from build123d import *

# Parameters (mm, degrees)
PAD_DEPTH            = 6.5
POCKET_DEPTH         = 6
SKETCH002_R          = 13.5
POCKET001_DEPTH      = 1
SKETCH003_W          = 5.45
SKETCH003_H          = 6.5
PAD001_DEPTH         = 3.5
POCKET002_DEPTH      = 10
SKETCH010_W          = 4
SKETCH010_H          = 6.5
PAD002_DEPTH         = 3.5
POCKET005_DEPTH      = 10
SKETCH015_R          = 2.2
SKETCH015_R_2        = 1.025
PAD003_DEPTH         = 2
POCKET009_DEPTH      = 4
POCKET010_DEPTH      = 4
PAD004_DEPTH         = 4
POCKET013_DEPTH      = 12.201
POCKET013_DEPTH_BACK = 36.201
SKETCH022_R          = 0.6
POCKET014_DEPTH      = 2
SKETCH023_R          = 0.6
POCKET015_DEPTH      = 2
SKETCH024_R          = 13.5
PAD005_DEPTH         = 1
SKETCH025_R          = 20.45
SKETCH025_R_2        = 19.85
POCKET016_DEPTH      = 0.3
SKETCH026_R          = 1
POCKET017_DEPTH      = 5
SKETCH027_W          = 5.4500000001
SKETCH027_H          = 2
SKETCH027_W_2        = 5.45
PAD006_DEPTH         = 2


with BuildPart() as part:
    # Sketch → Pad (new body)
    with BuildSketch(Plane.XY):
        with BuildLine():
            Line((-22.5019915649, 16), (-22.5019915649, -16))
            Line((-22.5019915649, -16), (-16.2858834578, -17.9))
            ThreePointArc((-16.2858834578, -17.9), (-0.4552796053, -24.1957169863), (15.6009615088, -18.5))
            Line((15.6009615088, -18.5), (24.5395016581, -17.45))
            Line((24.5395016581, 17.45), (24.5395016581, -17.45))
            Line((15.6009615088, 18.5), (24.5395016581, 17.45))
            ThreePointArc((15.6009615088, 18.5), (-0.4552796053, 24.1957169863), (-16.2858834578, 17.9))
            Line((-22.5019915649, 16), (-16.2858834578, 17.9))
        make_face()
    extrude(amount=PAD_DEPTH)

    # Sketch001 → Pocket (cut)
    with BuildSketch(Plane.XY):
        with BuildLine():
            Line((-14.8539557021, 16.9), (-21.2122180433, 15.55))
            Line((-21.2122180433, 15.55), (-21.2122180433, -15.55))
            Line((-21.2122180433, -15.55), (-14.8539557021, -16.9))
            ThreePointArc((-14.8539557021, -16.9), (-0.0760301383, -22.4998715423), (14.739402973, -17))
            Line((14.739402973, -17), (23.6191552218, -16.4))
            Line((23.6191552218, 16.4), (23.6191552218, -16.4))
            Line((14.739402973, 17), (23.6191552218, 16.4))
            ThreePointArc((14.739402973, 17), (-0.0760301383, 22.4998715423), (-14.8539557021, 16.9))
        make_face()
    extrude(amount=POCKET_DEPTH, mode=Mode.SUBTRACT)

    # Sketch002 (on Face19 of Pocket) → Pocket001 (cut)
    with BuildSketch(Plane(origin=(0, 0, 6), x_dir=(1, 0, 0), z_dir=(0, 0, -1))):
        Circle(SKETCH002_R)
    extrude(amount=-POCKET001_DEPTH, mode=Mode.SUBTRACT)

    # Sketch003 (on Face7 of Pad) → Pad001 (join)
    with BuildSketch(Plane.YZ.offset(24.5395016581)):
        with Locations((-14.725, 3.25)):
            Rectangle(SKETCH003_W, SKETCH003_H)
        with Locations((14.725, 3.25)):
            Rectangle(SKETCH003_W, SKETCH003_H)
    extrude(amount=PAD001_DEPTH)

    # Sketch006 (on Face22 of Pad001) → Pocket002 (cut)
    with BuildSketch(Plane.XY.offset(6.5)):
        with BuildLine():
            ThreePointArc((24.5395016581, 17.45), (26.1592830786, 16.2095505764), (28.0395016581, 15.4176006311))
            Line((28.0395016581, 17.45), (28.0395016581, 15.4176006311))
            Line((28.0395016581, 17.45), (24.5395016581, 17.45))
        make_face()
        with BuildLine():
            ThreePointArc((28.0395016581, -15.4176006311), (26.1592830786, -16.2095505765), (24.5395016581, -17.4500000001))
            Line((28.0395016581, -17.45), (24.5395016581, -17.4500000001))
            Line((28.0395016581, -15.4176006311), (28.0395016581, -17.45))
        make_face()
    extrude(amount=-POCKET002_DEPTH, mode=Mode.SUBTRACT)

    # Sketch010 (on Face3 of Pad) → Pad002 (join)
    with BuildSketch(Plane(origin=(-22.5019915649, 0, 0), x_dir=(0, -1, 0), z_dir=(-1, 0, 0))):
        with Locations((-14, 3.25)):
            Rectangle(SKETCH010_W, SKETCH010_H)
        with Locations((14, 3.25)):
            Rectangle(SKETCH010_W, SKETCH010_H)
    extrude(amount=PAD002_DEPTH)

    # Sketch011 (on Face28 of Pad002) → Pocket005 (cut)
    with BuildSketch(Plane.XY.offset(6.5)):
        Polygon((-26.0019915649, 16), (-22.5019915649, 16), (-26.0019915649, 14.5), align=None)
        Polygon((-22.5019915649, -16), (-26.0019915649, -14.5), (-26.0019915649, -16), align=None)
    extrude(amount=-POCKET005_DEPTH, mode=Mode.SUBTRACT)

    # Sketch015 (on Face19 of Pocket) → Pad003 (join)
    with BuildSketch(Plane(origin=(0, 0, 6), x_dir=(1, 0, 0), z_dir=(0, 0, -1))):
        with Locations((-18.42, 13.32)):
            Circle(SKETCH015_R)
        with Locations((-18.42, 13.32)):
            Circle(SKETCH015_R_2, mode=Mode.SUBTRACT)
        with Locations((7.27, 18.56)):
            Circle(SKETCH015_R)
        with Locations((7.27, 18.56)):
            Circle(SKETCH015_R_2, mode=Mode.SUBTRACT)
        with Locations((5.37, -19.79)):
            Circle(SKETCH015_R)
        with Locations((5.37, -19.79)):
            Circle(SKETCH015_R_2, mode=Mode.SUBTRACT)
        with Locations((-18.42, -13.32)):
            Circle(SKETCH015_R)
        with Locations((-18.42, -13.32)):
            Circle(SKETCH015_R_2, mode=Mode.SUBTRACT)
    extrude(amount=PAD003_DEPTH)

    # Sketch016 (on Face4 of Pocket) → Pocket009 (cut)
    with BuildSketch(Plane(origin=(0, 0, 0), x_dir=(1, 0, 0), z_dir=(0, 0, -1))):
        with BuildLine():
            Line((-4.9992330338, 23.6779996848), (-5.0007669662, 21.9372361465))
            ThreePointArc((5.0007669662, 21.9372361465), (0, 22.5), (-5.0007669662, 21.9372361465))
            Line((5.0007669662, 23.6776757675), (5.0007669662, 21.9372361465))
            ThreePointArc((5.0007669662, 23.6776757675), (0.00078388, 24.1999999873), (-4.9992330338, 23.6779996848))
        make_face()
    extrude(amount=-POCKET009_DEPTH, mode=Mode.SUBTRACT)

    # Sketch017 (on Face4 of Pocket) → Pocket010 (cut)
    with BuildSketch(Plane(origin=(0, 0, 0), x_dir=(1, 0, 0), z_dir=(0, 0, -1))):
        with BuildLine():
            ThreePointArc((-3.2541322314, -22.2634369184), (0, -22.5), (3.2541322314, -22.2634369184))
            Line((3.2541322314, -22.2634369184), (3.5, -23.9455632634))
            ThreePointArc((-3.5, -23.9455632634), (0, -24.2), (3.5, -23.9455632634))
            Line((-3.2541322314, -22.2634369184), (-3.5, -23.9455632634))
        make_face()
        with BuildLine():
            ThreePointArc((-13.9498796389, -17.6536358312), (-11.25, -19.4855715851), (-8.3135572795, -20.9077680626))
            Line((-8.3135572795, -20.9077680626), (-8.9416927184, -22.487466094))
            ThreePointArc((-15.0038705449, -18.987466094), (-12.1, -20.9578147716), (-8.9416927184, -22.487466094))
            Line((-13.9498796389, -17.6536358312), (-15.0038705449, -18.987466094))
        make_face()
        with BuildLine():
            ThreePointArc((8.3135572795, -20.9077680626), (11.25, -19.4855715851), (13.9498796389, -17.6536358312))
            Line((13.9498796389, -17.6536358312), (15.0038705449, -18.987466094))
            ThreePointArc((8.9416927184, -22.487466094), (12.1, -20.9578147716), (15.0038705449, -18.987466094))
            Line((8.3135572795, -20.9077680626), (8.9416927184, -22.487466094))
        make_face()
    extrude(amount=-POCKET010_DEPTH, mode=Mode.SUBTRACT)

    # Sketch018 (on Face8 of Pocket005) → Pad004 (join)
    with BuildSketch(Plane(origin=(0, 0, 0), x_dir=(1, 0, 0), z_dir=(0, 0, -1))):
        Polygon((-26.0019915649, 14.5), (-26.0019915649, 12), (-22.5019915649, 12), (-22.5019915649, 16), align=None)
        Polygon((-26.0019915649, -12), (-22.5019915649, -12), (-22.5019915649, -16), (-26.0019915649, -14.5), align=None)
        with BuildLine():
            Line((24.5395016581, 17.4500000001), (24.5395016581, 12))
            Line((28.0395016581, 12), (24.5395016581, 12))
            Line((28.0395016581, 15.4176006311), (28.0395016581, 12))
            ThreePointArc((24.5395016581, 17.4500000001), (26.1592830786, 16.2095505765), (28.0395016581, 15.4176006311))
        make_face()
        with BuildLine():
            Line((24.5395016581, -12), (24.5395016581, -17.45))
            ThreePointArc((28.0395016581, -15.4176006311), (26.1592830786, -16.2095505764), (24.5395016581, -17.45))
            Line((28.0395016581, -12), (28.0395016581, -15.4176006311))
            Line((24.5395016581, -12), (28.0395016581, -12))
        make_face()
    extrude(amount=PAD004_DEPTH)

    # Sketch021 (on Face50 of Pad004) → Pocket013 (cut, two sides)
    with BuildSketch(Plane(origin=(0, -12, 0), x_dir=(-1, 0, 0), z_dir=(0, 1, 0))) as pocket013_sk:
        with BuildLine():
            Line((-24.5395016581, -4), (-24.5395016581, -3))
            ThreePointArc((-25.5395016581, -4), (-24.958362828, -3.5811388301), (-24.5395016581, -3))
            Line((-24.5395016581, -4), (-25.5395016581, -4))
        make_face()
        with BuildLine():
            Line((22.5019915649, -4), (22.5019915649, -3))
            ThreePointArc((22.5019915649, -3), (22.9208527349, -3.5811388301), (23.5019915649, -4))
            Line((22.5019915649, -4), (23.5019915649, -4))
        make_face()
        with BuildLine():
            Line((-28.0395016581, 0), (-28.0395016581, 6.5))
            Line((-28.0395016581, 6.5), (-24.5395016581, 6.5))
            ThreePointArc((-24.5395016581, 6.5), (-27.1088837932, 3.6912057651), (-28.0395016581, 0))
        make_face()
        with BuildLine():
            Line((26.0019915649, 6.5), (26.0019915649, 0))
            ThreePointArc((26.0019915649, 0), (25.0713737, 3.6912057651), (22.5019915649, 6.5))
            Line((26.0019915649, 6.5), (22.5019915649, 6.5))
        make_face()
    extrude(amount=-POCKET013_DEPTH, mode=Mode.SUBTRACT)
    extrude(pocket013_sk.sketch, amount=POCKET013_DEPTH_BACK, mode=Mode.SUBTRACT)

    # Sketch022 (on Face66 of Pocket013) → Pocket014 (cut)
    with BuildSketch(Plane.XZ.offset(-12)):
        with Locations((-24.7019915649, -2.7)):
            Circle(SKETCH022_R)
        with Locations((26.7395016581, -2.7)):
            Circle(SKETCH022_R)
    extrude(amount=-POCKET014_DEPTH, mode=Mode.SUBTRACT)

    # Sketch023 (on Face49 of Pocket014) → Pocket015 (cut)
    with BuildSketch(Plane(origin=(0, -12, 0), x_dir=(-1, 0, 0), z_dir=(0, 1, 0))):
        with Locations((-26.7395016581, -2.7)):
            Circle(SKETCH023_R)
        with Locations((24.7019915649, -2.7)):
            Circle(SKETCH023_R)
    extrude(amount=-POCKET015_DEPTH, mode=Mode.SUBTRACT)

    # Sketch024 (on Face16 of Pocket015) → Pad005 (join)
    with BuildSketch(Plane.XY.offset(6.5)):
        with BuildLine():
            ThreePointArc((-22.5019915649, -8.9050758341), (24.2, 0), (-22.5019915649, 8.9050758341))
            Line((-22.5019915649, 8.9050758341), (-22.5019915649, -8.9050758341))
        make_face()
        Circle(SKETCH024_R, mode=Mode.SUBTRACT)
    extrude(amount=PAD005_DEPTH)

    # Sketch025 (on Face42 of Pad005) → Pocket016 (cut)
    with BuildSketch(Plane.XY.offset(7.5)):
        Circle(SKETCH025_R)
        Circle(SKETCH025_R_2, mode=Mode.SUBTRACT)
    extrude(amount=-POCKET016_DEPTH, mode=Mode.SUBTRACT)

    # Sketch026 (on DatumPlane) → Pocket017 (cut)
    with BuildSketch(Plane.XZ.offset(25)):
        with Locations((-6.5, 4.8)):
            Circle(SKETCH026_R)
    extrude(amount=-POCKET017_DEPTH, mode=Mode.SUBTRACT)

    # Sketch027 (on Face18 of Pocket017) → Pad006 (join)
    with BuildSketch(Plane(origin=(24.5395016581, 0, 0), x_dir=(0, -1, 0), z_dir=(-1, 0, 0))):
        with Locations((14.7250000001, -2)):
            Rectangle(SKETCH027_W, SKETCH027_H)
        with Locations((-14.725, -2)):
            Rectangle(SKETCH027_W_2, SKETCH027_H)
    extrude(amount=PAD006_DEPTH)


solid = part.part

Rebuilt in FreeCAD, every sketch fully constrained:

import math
import FreeCAD as App
import Part
import Sketcher

V = App.Vector
Q = App.Units.Quantity

doc = App.newDocument("Part")
params = doc.addObject("Spreadsheet::Sheet", "Params")
for row, (alias, value) in enumerate([
    ("sketch1_radius", "24.2 mm"),
    ("sketch1_height", "32 mm"),
    ("sketch1_length", "9 mm"),
    ("sketch1_height2", "34.9 mm"),
    ("sketch1_length2", "6.5 mm"),
    ("pad1_length", "6.5 mm"),
    ("sketch2_radius", "22.5 mm"),
    ("sketch2_height", "31.1 mm"),
    ("sketch2_height2", "32.8 mm"),
    ("sketch2_length", "6.5 mm"),
    ("sketch2_length2", "8.9 mm"),
    ("pocket1_length", "6 mm"),
    ("sketch3_diameter", "27 mm"),
    ("pocket2_length", "1 mm"),
    ("sketch4_height", "6.5 mm"),
    ("sketch4_width", "5.45 mm"),
    ("pad2_length", "3.5 mm"),
    ("sketch5_width", "3.5 mm"),
    ("pocket3_length", "10 mm"),
    ("sketch6_width", "4 mm"),
    ("sketch6_height", "6.5 mm"),
    ("pad3_length", "3.5 mm"),
    ("sketch7_width", "3.5 mm"),
    ("sketch7_height", "1.5 mm"),
    ("pocket4_length", "10 mm"),
    ("sketch8_diameter", "4.4 mm"),
    ("sketch8_diameter2", "2.05 mm"),
    ("pad4_length", "2 mm"),
    ("sketch9_radius", "22.5 mm"),
    ("sketch9_radius2", "24.2 mm"),
    ("pocket5_length", "4 mm"),
    ("sketch10_radius", "22.5 mm"),
    ("sketch10_radius2", "24.2 mm"),
    ("pocket6_length", "4 mm"),
    ("sketch11_height", "4 mm"),
    ("sketch11_width", "3.5 mm"),
    ("sketch11_height2", "2.5 mm"),
    ("sketch11_height3", "5.45 mm"),
    ("pad5_length", "4 mm"),
    ("sketch12_width", "1 mm"),
    ("sketch12_width2", "3.5 mm"),
    ("sketch12_height", "6.5 mm"),
    ("sketch13_diameter", "1.2 mm"),
    ("pocket8_length", "2 mm"),
    ("sketch14_diameter", "1.2 mm"),
    ("pocket9_length", "2 mm"),
    ("sketch15_diameter", "27 mm"),
    ("sketch15_radius", "24.2 mm"),
    ("pad6_length", "1 mm"),
    ("sketch16_diameter", "40.9 mm"),
    ("sketch16_diameter2", "39.7 mm"),
    ("pocket10_length", "0.3 mm"),
    ("sketch17_diameter", "2 mm"),
    ("pocket11_length", "5 mm"),
    ("sketch18_height", "2 mm"),
    ("sketch18_width", "5.45 mm"),
    ("pad7_length", "2 mm"),
], start=1):
    params.set(f"A{row}", alias)
    params.set(f"B{row}", "=" + value)
    params.setAlias(f"B{row}", alias)

body = doc.addObject("PartDesign::Body", "Body")

# Sketch on XY plane
sketch1 = body.newObject("Sketcher::SketchObject", "Sketch")
sketch1.AttachmentSupport = (doc.getObject("XY_Plane"), [""])
sketch1.MapMode = "FlatFace"
sketch1.addGeometry(Part.LineSegment(V(-23, 16, 0), V(-23, -16, 0)), False)
sketch1.addGeometry(Part.LineSegment(V(-23, -16, 0), V(-16, -18, 0)), False)
sketch1.addGeometry(Part.ArcOfCircle(Part.Circle(V(0, 0, 0), V(0, 0, 1), 24), math.radians(-132), math.radians(-50)), False)
sketch1.addGeometry(Part.LineSegment(V(16, -18, 0), V(25, -17, 0)), False)
sketch1.addGeometry(Part.LineSegment(V(25, -17, 0), V(25, 17, 0)), False)
sketch1.addGeometry(Part.LineSegment(V(25, 17, 0), V(16, 18, 0)), False)
sketch1.addGeometry(Part.ArcOfCircle(Part.Circle(V(0, 0, 0), V(0, 0, 1), 24), math.radians(50), math.radians(132)), False)
sketch1.addGeometry(Part.LineSegment(V(-16, 18, 0), V(-23, 16, 0)), False)
sketch1.addConstraint(Sketcher.Constraint("Coincident", 0, 2, 1, 1))
sketch1.addConstraint(Sketcher.Constraint("Coincident", 1, 2, 2, 1))
sketch1.addConstraint(Sketcher.Constraint("Coincident", 2, 2, 3, 1))
sketch1.addConstraint(Sketcher.Constraint("Coincident", 3, 2, 4, 1))
sketch1.addConstraint(Sketcher.Constraint("Coincident", 4, 2, 5, 1))
sketch1.addConstraint(Sketcher.Constraint("Coincident", 5, 2, 6, 1))
sketch1.addConstraint(Sketcher.Constraint("Coincident", 6, 2, 7, 1))
sketch1.addConstraint(Sketcher.Constraint("Coincident", 7, 2, 0, 1))
sketch1.addConstraint(Sketcher.Constraint("Vertical", 0))
sketch1.addConstraint(Sketcher.Constraint("Vertical", 4))
sketch1.addConstraint(Sketcher.Constraint("Coincident", 2, 3, -1, 1))
sketch1.addConstraint(Sketcher.Constraint("Coincident", 6, 3, -1, 1))
sketch1.addConstraint(Sketcher.Constraint("Equal", 2, 6))
sketch1.addConstraint(Sketcher.Constraint("Vertical", 2, 2, 5, 2))
sketch1.addConstraint(Sketcher.Constraint("Vertical", 1, 2, 6, 2))
sketch1.addConstraint(Sketcher.Constraint("Equal", 3, 5))
sketch1.addConstraint(Sketcher.Constraint("Equal", 1, 7))
sketch1.addConstraint(Sketcher.Constraint("Radius", 2, Q("24.2 mm")))
sketch1.addConstraint(Sketcher.Constraint("DistanceY", 0, 2, 0, 1, Q("32 mm")))
sketch1.addConstraint(Sketcher.Constraint("Distance", 3, Q("9 mm")))
sketch1.addConstraint(Sketcher.Constraint("DistanceY", 4, 1, 4, 2, Q("34.9 mm")))
sketch1.addConstraint(Sketcher.Constraint("DistanceY", 2, 2, 5, 2, Q("37 mm")))
sketch1.addConstraint(Sketcher.Constraint("Distance", 1, Q("6.5 mm")))
sketch1.addConstraint(Sketcher.Constraint("DistanceY", 1, 2, -1, 1, Q("17.9 mm")))
sketch1.setExpression("Constraints[17]", "Params.sketch1_radius")
sketch1.setExpression("Constraints[18]", "Params.sketch1_height")
sketch1.setExpression("Constraints[19]", "Params.sketch1_length")
sketch1.setExpression("Constraints[20]", "Params.sketch1_height2")
sketch1.setExpression("Constraints[22]", "Params.sketch1_length2")
pad1 = body.newObject("PartDesign::Pad", "Pad")
pad1.Profile = sketch1
pad1.setExpression("Length", "Params.pad1_length")

# Sketch on XY plane
sketch2 = body.newObject("Sketcher::SketchObject", "Sketch001")
sketch2.AttachmentSupport = (doc.getObject("XY_Plane"), [""])
sketch2.MapMode = "FlatFace"
sketch2.addGeometry(Part.LineSegment(V(-15, 17, 0), V(-21, 16, 0)), False)
sketch2.addGeometry(Part.LineSegment(V(-21, 16, 0), V(-21, -16, 0)), False)
sketch2.addGeometry(Part.LineSegment(V(-21, -16, 0), V(-15, -17, 0)), False)
sketch2.addGeometry(Part.ArcOfCircle(Part.Circle(V(0, 0, 0), V(0, 0, 1), 22), math.radians(-131), math.radians(-49)), False)
sketch2.addGeometry(Part.LineSegment(V(15, -17, 0), V(24, -16, 0)), False)
sketch2.addGeometry(Part.LineSegment(V(24, -16, 0), V(24, 16, 0)), False)
sketch2.addGeometry(Part.LineSegment(V(24, 16, 0), V(15, 17, 0)), False)
sketch2.addGeometry(Part.ArcOfCircle(Part.Circle(V(0, 0, 0), V(0, 0, 1), 22), math.radians(49), math.radians(131)), False)
sketch2.addConstraint(Sketcher.Constraint("Coincident", 0, 2, 1, 1))
sketch2.addConstraint(Sketcher.Constraint("Coincident", 1, 2, 2, 1))
sketch2.addConstraint(Sketcher.Constraint("Coincident", 2, 2, 3, 1))
sketch2.addConstraint(Sketcher.Constraint("Coincident", 3, 2, 4, 1))
sketch2.addConstraint(Sketcher.Constraint("Coincident", 4, 2, 5, 1))
sketch2.addConstraint(Sketcher.Constraint("Coincident", 5, 2, 6, 1))
sketch2.addConstraint(Sketcher.Constraint("Coincident", 6, 2, 7, 1))
sketch2.addConstraint(Sketcher.Constraint("Coincident", 7, 2, 0, 1))
sketch2.addConstraint(Sketcher.Constraint("Vertical", 1))
sketch2.addConstraint(Sketcher.Constraint("Vertical", 5))
sketch2.addConstraint(Sketcher.Constraint("Coincident", 3, 3, -1, 1))
sketch2.addConstraint(Sketcher.Constraint("Coincident", 7, 3, -1, 1))
sketch2.addConstraint(Sketcher.Constraint("Equal", 3, 7))
sketch2.addConstraint(Sketcher.Constraint("Vertical", 3, 2, 6, 2))
sketch2.addConstraint(Sketcher.Constraint("Vertical", 2, 2, 7, 2))
sketch2.addConstraint(Sketcher.Constraint("Equal", 0, 2))
sketch2.addConstraint(Sketcher.Constraint("Equal", 4, 6))
sketch2.addConstraint(Sketcher.Constraint("Radius", 3, Q("22.5 mm")))
sketch2.addConstraint(Sketcher.Constraint("DistanceY", 1, 2, 1, 1, Q("31.1 mm")))
sketch2.addConstraint(Sketcher.Constraint("DistanceY", 5, 1, 5, 2, Q("32.8 mm")))
sketch2.addConstraint(Sketcher.Constraint("DistanceY", 3, 2, -1, 1, Q("17 mm")))
sketch2.addConstraint(Sketcher.Constraint("Distance", 0, Q("6.5 mm")))
sketch2.addConstraint(Sketcher.Constraint("Distance", 4, Q("8.9 mm")))
sketch2.addConstraint(Sketcher.Constraint("DistanceY", 2, 2, -1, 1, Q("16.9 mm")))
sketch2.setExpression("Constraints[17]", "Params.sketch2_radius")
sketch2.setExpression("Constraints[18]", "Params.sketch2_height")
sketch2.setExpression("Constraints[19]", "Params.sketch2_height2")
sketch2.setExpression("Constraints[21]", "Params.sketch2_length")
sketch2.setExpression("Constraints[22]", "Params.sketch2_length2")
pocket1 = body.newObject("PartDesign::Pocket", "Pocket")
pocket1.Profile = sketch2
pocket1.setExpression("Length", "Params.pocket1_length")
pocket1.Reversed = True

# Sketch on XY plane
sketch3 = body.newObject("Sketcher::SketchObject", "Sketch002")
sketch3.AttachmentSupport = (doc.getObject("XY_Plane"), [""])
sketch3.MapMode = "FlatFace"
sketch3.AttachmentOffset = App.Placement(V(0, 0, 6), App.Rotation())
sketch3.addGeometry(Part.Circle(V(0, 0, 0), V(0, 0, 1), 14), False)
sketch3.addConstraint(Sketcher.Constraint("Coincident", 0, 3, -1, 1))
sketch3.addConstraint(Sketcher.Constraint("Diameter", 0, Q("27 mm")))
sketch3.setExpression("Constraints[1]", "Params.sketch3_diameter")
pocket2 = body.newObject("PartDesign::Pocket", "Pocket001")
pocket2.Profile = sketch3
pocket2.setExpression("Length", "Params.pocket2_length")
pocket2.Reversed = True

# Sketch on YZ plane
sketch4 = body.newObject("Sketcher::SketchObject", "Sketch003")
sketch4.AttachmentSupport = (doc.getObject("YZ_Plane"), [""])
sketch4.MapMode = "FlatFace"
sketch4.AttachmentOffset = App.Placement(V(0, 0, 24.539502), App.Rotation())
sketch4.addGeometry(Part.LineSegment(V(-17, 6, 0), V(-17, 0, 0)), False)
sketch4.addGeometry(Part.LineSegment(V(-17, 0, 0), V(-12, 0, 0)), False)
sketch4.addGeometry(Part.LineSegment(V(-12, 0, 0), V(-12, 6, 0)), False)
sketch4.addGeometry(Part.LineSegment(V(-12, 6, 0), V(-17, 6, 0)), False)
sketch4.addGeometry(Part.LineSegment(V(12, 6, 0), V(12, 0, 0)), False)
sketch4.addGeometry(Part.LineSegment(V(12, 0, 0), V(17, 0, 0)), False)
sketch4.addGeometry(Part.LineSegment(V(17, 0, 0), V(17, 6, 0)), False)
sketch4.addGeometry(Part.LineSegment(V(17, 6, 0), V(12, 6, 0)), False)
sketch4.addConstraint(Sketcher.Constraint("Coincident", 0, 2, 1, 1))
sketch4.addConstraint(Sketcher.Constraint("Coincident", 1, 2, 2, 1))
sketch4.addConstraint(Sketcher.Constraint("Coincident", 2, 2, 3, 1))
sketch4.addConstraint(Sketcher.Constraint("Coincident", 3, 2, 0, 1))
sketch4.addConstraint(Sketcher.Constraint("Coincident", 4, 2, 5, 1))
sketch4.addConstraint(Sketcher.Constraint("Coincident", 5, 2, 6, 1))
sketch4.addConstraint(Sketcher.Constraint("Coincident", 6, 2, 7, 1))
sketch4.addConstraint(Sketcher.Constraint("Coincident", 7, 2, 4, 1))
sketch4.addConstraint(Sketcher.Constraint("Vertical", 0))
sketch4.addConstraint(Sketcher.Constraint("Horizontal", 1))
sketch4.addConstraint(Sketcher.Constraint("Vertical", 2))
sketch4.addConstraint(Sketcher.Constraint("Horizontal", 3))
sketch4.addConstraint(Sketcher.Constraint("Vertical", 4))
sketch4.addConstraint(Sketcher.Constraint("Horizontal", 5))
sketch4.addConstraint(Sketcher.Constraint("Vertical", 6))
sketch4.addConstraint(Sketcher.Constraint("Horizontal", 7))
sketch4.addConstraint(Sketcher.Constraint("Symmetric", 1, 2, 4, 2, -1, 1))
sketch4.addConstraint(Sketcher.Constraint("Symmetric", 0, 2, 5, 2, -2))
sketch4.addConstraint(Sketcher.Constraint("Horizontal", 3, 2, 6, 2))
sketch4.addConstraint(Sketcher.Constraint("DistanceY", 0, 2, 0, 1, Q("6.5 mm")))
sketch4.addConstraint(Sketcher.Constraint("DistanceX", 1, 2, -1, 1, Q("12 mm")))
sketch4.addConstraint(Sketcher.Constraint("DistanceX", 1, 1, 1, 2, Q("5.45 mm")))
sketch4.setExpression("Constraints[19]", "Params.sketch4_height")
sketch4.setExpression("Constraints[21]", "Params.sketch4_width")
pad2 = body.newObject("PartDesign::Pad", "Pad001")
pad2.Profile = sketch4
pad2.setExpression("Length", "Params.pad2_length")

# Sketch on XY plane
sketch5 = body.newObject("Sketcher::SketchObject", "Sketch004")
sketch5.AttachmentSupport = (doc.getObject("XY_Plane"), [""])
sketch5.MapMode = "FlatFace"
sketch5.AttachmentOffset = App.Placement(V(0, 0, 6.5), App.Rotation())
sketch5.addGeometry(Part.ArcOfCircle(Part.Circle(V(30.2, 23.1, 0), V(0, 0, 1), 8), math.radians(-135), math.radians(-106)), False)
sketch5.addGeometry(Part.LineSegment(V(28, 15.4, 0), V(28, 17.4, 0)), False)
sketch5.addGeometry(Part.LineSegment(V(28, 17.4, 0), V(24.5, 17.4, 0)), False)
sketch5.addGeometry(Part.ArcOfCircle(Part.Circle(V(30.2, -23.2, 0), V(0, 0, 1), 8), math.radians(106), math.radians(135)), False)
sketch5.addGeometry(Part.LineSegment(V(24.5, -17.4, 0), V(28, -17.4, 0)), False)
sketch5.addGeometry(Part.LineSegment(V(28, -17.4, 0), V(28, -15.4, 0)), False)
sketch5.addConstraint(Sketcher.Constraint("Coincident", 0, 2, 1, 1))
sketch5.addConstraint(Sketcher.Constraint("Coincident", 1, 2, 2, 1))
sketch5.addConstraint(Sketcher.Constraint("Coincident", 2, 2, 0, 1))
sketch5.addConstraint(Sketcher.Constraint("Coincident", 3, 2, 4, 1))
sketch5.addConstraint(Sketcher.Constraint("Coincident", 4, 2, 5, 1))
sketch5.addConstraint(Sketcher.Constraint("Coincident", 5, 2, 3, 1))
sketch5.addConstraint(Sketcher.Constraint("Vertical", 1))
sketch5.addConstraint(Sketcher.Constraint("Horizontal", 2))
sketch5.addConstraint(Sketcher.Constraint("Horizontal", 4))
sketch5.addConstraint(Sketcher.Constraint("Vertical", 5))
sketch5.addConstraint(Sketcher.Constraint("Equal", 0, 3))
sketch5.addConstraint(Sketcher.Constraint("Symmetric", 0, 3, 3, 3, -1))
sketch5.addConstraint(Sketcher.Constraint("Symmetric", 1, 2, 4, 2, -1))
sketch5.addConstraint(Sketcher.Constraint("DistanceX", 2, 2, 2, 1, Q("3.5 mm")))
sketch5.addConstraint(Sketcher.Constraint("DistanceY", 3, 3, 0, 3, Q("46.3 mm")))
sketch5.addConstraint(Sketcher.Constraint("DistanceY", 1, 2, 0, 3, Q("5.7 mm")))
sketch5.addConstraint(Sketcher.Constraint("Radius", 0, Q("8.02574 mm")))
sketch5.addConstraint(Sketcher.Constraint("DistanceX", -1, 1, 0, 3, Q("30.189502 mm")))
sketch5.setExpression("Constraints[13]", "Params.sketch5_width")
pocket3 = body.newObject("PartDesign::Pocket", "Pocket002")
pocket3.Profile = sketch5
pocket3.setExpression("Length", "Params.pocket3_length")

# Sketch on YZ plane
sketch6 = body.newObject("Sketcher::SketchObject", "Sketch005")
sketch6.AttachmentSupport = (doc.getObject("YZ_Plane"), [""])
sketch6.MapMode = "FlatFace"
sketch6.AttachmentOffset = App.Placement(V(0, 0, -22.501992), App.Rotation())
sketch6.addGeometry(Part.LineSegment(V(16, 6.5, 0), V(16, 0, 0)), False)
sketch6.addGeometry(Part.LineSegment(V(16, 0, 0), V(12, 0, 0)), False)
sketch6.addGeometry(Part.LineSegment(V(12, 0, 0), V(12, 6.5, 0)), False)
sketch6.addGeometry(Part.LineSegment(V(12, 6.5, 0), V(16, 6.5, 0)), False)
sketch6.addGeometry(Part.LineSegment(V(-12, 6.5, 0), V(-12, 0, 0)), False)
sketch6.addGeometry(Part.LineSegment(V(-12, 0, 0), V(-16, 0, 0)), False)
sketch6.addGeometry(Part.LineSegment(V(-16, 0, 0), V(-16, 6.5, 0)), False)
sketch6.addGeometry(Part.LineSegment(V(-16, 6.5, 0), V(-12, 6.5, 0)), False)
sketch6.addConstraint(Sketcher.Constraint("Coincident", 0, 2, 1, 1))
sketch6.addConstraint(Sketcher.Constraint("Coincident", 1, 2, 2, 1))
sketch6.addConstraint(Sketcher.Constraint("Coincident", 2, 2, 3, 1))
sketch6.addConstraint(Sketcher.Constraint("Coincident", 3, 2, 0, 1))
sketch6.addConstraint(Sketcher.Constraint("Coincident", 4, 2, 5, 1))
sketch6.addConstraint(Sketcher.Constraint("Coincident", 5, 2, 6, 1))
sketch6.addConstraint(Sketcher.Constraint("Coincident", 6, 2, 7, 1))
sketch6.addConstraint(Sketcher.Constraint("Coincident", 7, 2, 4, 1))
sketch6.addConstraint(Sketcher.Constraint("Vertical", 0))
sketch6.addConstraint(Sketcher.Constraint("Horizontal", 1))
sketch6.addConstraint(Sketcher.Constraint("Vertical", 2))
sketch6.addConstraint(Sketcher.Constraint("Horizontal", 3))
sketch6.addConstraint(Sketcher.Constraint("Vertical", 4))
sketch6.addConstraint(Sketcher.Constraint("Horizontal", 5))
sketch6.addConstraint(Sketcher.Constraint("Vertical", 6))
sketch6.addConstraint(Sketcher.Constraint("Horizontal", 7))
sketch6.addConstraint(Sketcher.Constraint("Symmetric", 1, 2, 4, 2, -1, 1))
sketch6.addConstraint(Sketcher.Constraint("Symmetric", 0, 2, 5, 2, -2))
sketch6.addConstraint(Sketcher.Constraint("Horizontal", 3, 2, 6, 2))
sketch6.addConstraint(Sketcher.Constraint("DistanceX", 1, 2, 1, 1, Q("4 mm")))
sketch6.addConstraint(Sketcher.Constraint("DistanceY", 0, 2, 0, 1, Q("6.5 mm")))
sketch6.addConstraint(Sketcher.Constraint("DistanceX", -1, 1, 0, 2, Q("16 mm")))
sketch6.setExpression("Constraints[19]", "Params.sketch6_width")
sketch6.setExpression("Constraints[20]", "Params.sketch6_height")
pad3 = body.newObject("PartDesign::Pad", "Pad002")
pad3.Profile = sketch6
pad3.setExpression("Length", "Params.pad3_length")
pad3.Reversed = True

# Sketch on XY plane
sketch7 = body.newObject("Sketcher::SketchObject", "Sketch006")
sketch7.AttachmentSupport = (doc.getObject("XY_Plane"), [""])
sketch7.MapMode = "FlatFace"
sketch7.AttachmentOffset = App.Placement(V(0, 0, 6.5), App.Rotation())
sketch7.addGeometry(Part.LineSegment(V(-22.5, 16, 0), V(-26, 16, 0)), False)
sketch7.addGeometry(Part.LineSegment(V(-26, 16, 0), V(-26, 14.5, 0)), False)
sketch7.addGeometry(Part.LineSegment(V(-26, 14.5, 0), V(-22.5, 16, 0)), False)
sketch7.addGeometry(Part.LineSegment(V(-22.5, -16, 0), V(-26, -14.5, 0)), False)
sketch7.addGeometry(Part.LineSegment(V(-26, -14.5, 0), V(-26, -16, 0)), False)
sketch7.addGeometry(Part.LineSegment(V(-26, -16, 0), V(-22.5, -16, 0)), False)
sketch7.addConstraint(Sketcher.Constraint("Coincident", 0, 2, 1, 1))
sketch7.addConstraint(Sketcher.Constraint("Coincident", 1, 2, 2, 1))
sketch7.addConstraint(Sketcher.Constraint("Coincident", 2, 2, 0, 1))
sketch7.addConstraint(Sketcher.Constraint("Coincident", 3, 2, 4, 1))
sketch7.addConstraint(Sketcher.Constraint("Coincident", 4, 2, 5, 1))
sketch7.addConstraint(Sketcher.Constraint("Coincident", 5, 2, 3, 1))
sketch7.addConstraint(Sketcher.Constraint("Horizontal", 0))
sketch7.addConstraint(Sketcher.Constraint("Vertical", 1))
sketch7.addConstraint(Sketcher.Constraint("Vertical", 4))
sketch7.addConstraint(Sketcher.Constraint("Horizontal", 5))
sketch7.addConstraint(Sketcher.Constraint("Symmetric", 1, 2, 3, 2, -1))
sketch7.addConstraint(Sketcher.Constraint("Symmetric", 2, 2, 5, 2, -1))
sketch7.addConstraint(Sketcher.Constraint("DistanceX", 0, 2, 0, 1, Q("3.5 mm")))
sketch7.addConstraint(Sketcher.Constraint("DistanceY", 1, 2, 1, 1, Q("1.5 mm")))
sketch7.addConstraint(Sketcher.Constraint("DistanceY", -1, 1, 0, 2, Q("16 mm")))
sketch7.addConstraint(Sketcher.Constraint("DistanceX", 0, 2, -1, 1, Q("26.001992 mm")))
sketch7.setExpression("Constraints[12]", "Params.sketch7_width")
sketch7.setExpression("Constraints[13]", "Params.sketch7_height")
pocket4 = body.newObject("PartDesign::Pocket", "Pocket003")
pocket4.Profile = sketch7
pocket4.setExpression("Length", "Params.pocket4_length")

# Sketch on XY plane
sketch8 = body.newObject("Sketcher::SketchObject", "Sketch007")
sketch8.AttachmentSupport = (doc.getObject("XY_Plane"), [""])
sketch8.MapMode = "FlatFace"
sketch8.AttachmentOffset = App.Placement(V(0, 0, 6), App.Rotation())
sketch8.addGeometry(Part.Circle(V(-18.4, -13.3, 0), V(0, 0, 1), 2.2), False)
sketch8.addGeometry(Part.Circle(V(-18.4, -13.3, 0), V(0, 0, 1), 1), False)
sketch8.addGeometry(Part.Circle(V(7.3, -18.6, 0), V(0, 0, 1), 2.2), False)
sketch8.addGeometry(Part.Circle(V(7.3, -18.6, 0), V(0, 0, 1), 1), False)
sketch8.addGeometry(Part.Circle(V(5.4, 19.8, 0), V(0, 0, 1), 2.2), False)
sketch8.addGeometry(Part.Circle(V(5.4, 19.8, 0), V(0, 0, 1), 1), False)
sketch8.addGeometry(Part.Circle(V(-18.4, 13.3, 0), V(0, 0, 1), 2.2), False)
sketch8.addGeometry(Part.Circle(V(-18.4, 13.3, 0), V(0, 0, 1), 1), False)
sketch8.addConstraint(Sketcher.Constraint("Coincident", 1, 3, 0, 3))
sketch8.addConstraint(Sketcher.Constraint("Coincident", 3, 3, 2, 3))
sketch8.addConstraint(Sketcher.Constraint("Coincident", 5, 3, 4, 3))
sketch8.addConstraint(Sketcher.Constraint("Coincident", 7, 3, 6, 3))
sketch8.addConstraint(Sketcher.Constraint("Equal", 0, 2))
sketch8.addConstraint(Sketcher.Constraint("Equal", 1, 3))
sketch8.addConstraint(Sketcher.Constraint("Equal", 2, 4))
sketch8.addConstraint(Sketcher.Constraint("Equal", 3, 5))
sketch8.addConstraint(Sketcher.Constraint("Equal", 4, 6))
sketch8.addConstraint(Sketcher.Constraint("Equal", 5, 7))
sketch8.addConstraint(Sketcher.Constraint("Symmetric", 0, 3, 6, 3, -1))
sketch8.addConstraint(Sketcher.Constraint("Diameter", 0, Q("4.4 mm")))
sketch8.addConstraint(Sketcher.Constraint("Diameter", 1, Q("2.05 mm")))
sketch8.addConstraint(Sketcher.Constraint("DistanceX", 4, 3, 2, 3, Q("1.9 mm")))
sketch8.addConstraint(Sketcher.Constraint("DistanceX", 0, 3, -1, 1, Q("18.42 mm")))
sketch8.addConstraint(Sketcher.Constraint("DistanceY", 0, 3, -1, 1, Q("13.32 mm")))
sketch8.addConstraint(Sketcher.Constraint("DistanceX", -1, 1, 2, 3, Q("7.27 mm")))
sketch8.addConstraint(Sketcher.Constraint("DistanceY", 2, 3, -1, 1, Q("18.56 mm")))
sketch8.addConstraint(Sketcher.Constraint("DistanceY", -1, 1, 4, 3, Q("19.79 mm")))
sketch8.setExpression("Constraints[11]", "Params.sketch8_diameter")
sketch8.setExpression("Constraints[12]", "Params.sketch8_diameter2")
pad4 = body.newObject("PartDesign::Pad", "Pad003")
pad4.Profile = sketch8
pad4.setExpression("Length", "Params.pad4_length")
pad4.Reversed = True

# Sketch on XY plane
sketch9 = body.newObject("Sketcher::SketchObject", "Sketch008")
sketch9.AttachmentSupport = (doc.getObject("XY_Plane"), [""])
sketch9.MapMode = "FlatFace"
sketch9.addGeometry(Part.LineSegment(V(-5, -23.7, 0), V(-5, -21.9, 0)), False)
sketch9.addGeometry(Part.ArcOfCircle(Part.Circle(V(0, 0, 0), V(0, 0, 1), 22.5), math.radians(-103), math.radians(-77)), False)
sketch9.addGeometry(Part.LineSegment(V(5, -21.9, 0), V(5, -23.7, 0)), False)
sketch9.addGeometry(Part.ArcOfCircle(Part.Circle(V(0, 0, 0), V(0, 0, 1), 24.2), math.radians(-102), math.radians(-78)), False)
sketch9.addConstraint(Sketcher.Constraint("Coincident", 0, 2, 1, 1))
sketch9.addConstraint(Sketcher.Constraint("Coincident", 1, 2, 2, 1))
sketch9.addConstraint(Sketcher.Constraint("Coincident", 2, 2, 3, 2))
sketch9.addConstraint(Sketcher.Constraint("Coincident", 3, 1, 0, 1))
sketch9.addConstraint(Sketcher.Constraint("Vertical", 2))
sketch9.addConstraint(Sketcher.Constraint("Coincident", 1, 3, -1, 1))
sketch9.addConstraint(Sketcher.Constraint("Coincident", 3, 3, -1, 1))
sketch9.addConstraint(Sketcher.Constraint("Horizontal", 0, 2, 1, 2))
sketch9.addConstraint(Sketcher.Constraint("Radius", 1, Q("22.5 mm")))
sketch9.addConstraint(Sketcher.Constraint("Radius", 3, Q("24.2 mm")))
sketch9.addConstraint(Sketcher.Constraint("DistanceX", 3, 1, 2, 2, Q("10 mm")))
sketch9.addConstraint(Sketcher.Constraint("DistanceY", 3, 1, -1, 1, Q("23.678 mm")))
sketch9.setExpression("Constraints[8]", "Params.sketch9_radius")
sketch9.setExpression("Constraints[9]", "Params.sketch9_radius2")
pocket5 = body.newObject("PartDesign::Pocket", "Pocket004")
pocket5.Profile = sketch9
pocket5.setExpression("Length", "Params.pocket5_length")
pocket5.Reversed = True

# Sketch on XY plane
sketch10 = body.newObject("Sketcher::SketchObject", "Sketch009")
sketch10.AttachmentSupport = (doc.getObject("XY_Plane"), [""])
sketch10.MapMode = "FlatFace"
sketch10.addGeometry(Part.ArcOfCircle(Part.Circle(V(0, 0, 0), V(0, 0, 1), 22.5), math.radians(81.68), math.radians(98.32)), False)
sketch10.addGeometry(Part.LineSegment(V(-3.3, 22.3, 0), V(-3.5, 23.9, 0)), False)
sketch10.addGeometry(Part.ArcOfCircle(Part.Circle(V(0, 0, 0), V(0, 0, 1), 24.2), math.radians(81.68), math.radians(98.32)), False)
sketch10.addGeometry(Part.LineSegment(V(3.5, 23.9, 0), V(3.3, 22.3, 0)), False)
sketch10.addGeometry(Part.ArcOfCircle(Part.Circle(V(0, 0, 0), V(0, 0, 1), 22.5), math.radians(111.68), math.radians(128.32)), False)
sketch10.addGeometry(Part.LineSegment(V(-13.9, 17.7, 0), V(-15, 19, 0)), False)
sketch10.addGeometry(Part.ArcOfCircle(Part.Circle(V(0, 0, 0), V(0, 0, 1), 24.2), math.radians(111.68), math.radians(128.32)), False)
sketch10.addGeometry(Part.LineSegment(V(-8.9, 22.5, 0), V(-8.3, 20.9, 0)), False)
sketch10.addGeometry(Part.ArcOfCircle(Part.Circle(V(0, 0, 0), V(0, 0, 1), 22.5), math.radians(51.68), math.radians(68.32)), False)
sketch10.addGeometry(Part.LineSegment(V(8.3, 20.9, 0), V(8.9, 22.5, 0)), False)
sketch10.addGeometry(Part.ArcOfCircle(Part.Circle(V(0, 0, 0), V(0, 0, 1), 24.2), math.radians(51.68), math.radians(68.32)), False)
sketch10.addGeometry(Part.LineSegment(V(15, 19, 0), V(13.9, 17.7, 0)), False)
sketch10.addConstraint(Sketcher.Constraint("Coincident", 0, 2, 1, 1))
sketch10.addConstraint(Sketcher.Constraint("Coincident", 1, 2, 2, 2))
sketch10.addConstraint(Sketcher.Constraint("Coincident", 2, 1, 3, 1))
sketch10.addConstraint(Sketcher.Constraint("Coincident", 3, 2, 0, 1))
sketch10.addConstraint(Sketcher.Constraint("Coincident", 4, 2, 5, 1))
sketch10.addConstraint(Sketcher.Constraint("Coincident", 5, 2, 6, 2))
sketch10.addConstraint(Sketcher.Constraint("Coincident", 6, 1, 7, 1))
sketch10.addConstraint(Sketcher.Constraint("Coincident", 7, 2, 4, 1))
sketch10.addConstraint(Sketcher.Constraint("Coincident", 8, 2, 9, 1))
sketch10.addConstraint(Sketcher.Constraint("Coincident", 9, 2, 10, 2))
sketch10.addConstraint(Sketcher.Constraint("Coincident", 10, 1, 11, 1))
sketch10.addConstraint(Sketcher.Constraint("Coincident", 11, 2, 8, 1))
sketch10.addConstraint(Sketcher.Constraint("Coincident", 0, 3, -1, 1))
sketch10.addConstraint(Sketcher.Constraint("Coincident", 2, 3, -1, 1))
sketch10.addConstraint(Sketcher.Constraint("Coincident", 4, 3, -1, 1))
sketch10.addConstraint(Sketcher.Constraint("Coincident", 6, 3, -1, 1))
sketch10.addConstraint(Sketcher.Constraint("Coincident", 8, 3, -1, 1))
sketch10.addConstraint(Sketcher.Constraint("Coincident", 10, 3, -1, 1))
sketch10.addConstraint(Sketcher.Constraint("Equal", 0, 4))
sketch10.addConstraint(Sketcher.Constraint("Equal", 2, 6))
sketch10.addConstraint(Sketcher.Constraint("Equal", 4, 8))
sketch10.addConstraint(Sketcher.Constraint("Equal", 6, 10))
sketch10.addConstraint(Sketcher.Constraint("Horizontal", 1, 2, 2, 1))
sketch10.addConstraint(Sketcher.Constraint("Horizontal", 0, 2, 3, 2))
sketch10.addConstraint(Sketcher.Constraint("Horizontal", 7, 2, 8, 2))
sketch10.addConstraint(Sketcher.Constraint("Horizontal", 6, 1, 9, 2))
sketch10.addConstraint(Sketcher.Constraint("Horizontal", 5, 2, 10, 1))
sketch10.addConstraint(Sketcher.Constraint("Horizontal", 4, 2, 11, 2))
sketch10.addConstraint(Sketcher.Constraint("Radius", 0, Q("22.5 mm")))
sketch10.addConstraint(Sketcher.Constraint("Radius", 2, Q("24.2 mm")))
sketch10.addConstraint(Sketcher.Constraint("DistanceX", 1, 2, 2, 1, Q("7 mm")))
sketch10.addConstraint(Sketcher.Constraint("DistanceY", 5, 2, 6, 1, Q("3.5 mm")))
sketch10.addConstraint(Sketcher.Constraint("DistanceY", 4, 2, 0, 2, Q("4.609801 mm")))
sketch10.addConstraint(Sketcher.Constraint("DistanceY", 7, 2, 6, 1, Q("1.579698 mm")))
sketch10.addConstraint(Sketcher.Constraint("DistanceX", 4, 2, -1, 1, Q("13.94988 mm")))
sketch10.addConstraint(Sketcher.Constraint("DistanceX", 5, 2, -1, 1, Q("15.003871 mm")))
sketch10.setExpression("Constraints[28]", "Params.sketch10_radius")
sketch10.setExpression("Constraints[29]", "Params.sketch10_radius2")
pocket6 = body.newObject("PartDesign::Pocket", "Pocket005")
pocket6.Profile = sketch10
pocket6.setExpression("Length", "Params.pocket6_length")
pocket6.Reversed = True

# Sketch on XY plane
sketch11 = body.newObject("Sketcher::SketchObject", "Sketch010")
sketch11.AttachmentSupport = (doc.getObject("XY_Plane"), [""])
sketch11.MapMode = "FlatFace"
sketch11.addGeometry(Part.LineSegment(V(-26, -14.5, 0), V(-26, -12, 0)), False)
sketch11.addGeometry(Part.LineSegment(V(-26, -12, 0), V(-22.5, -12, 0)), False)
sketch11.addGeometry(Part.LineSegment(V(-22.5, -12, 0), V(-22.5, -16, 0)), False)
sketch11.addGeometry(Part.LineSegment(V(-22.5, -16, 0), V(-26, -14.5, 0)), False)
sketch11.addGeometry(Part.LineSegment(V(-22.5, 12, 0), V(-26, 12, 0)), False)
sketch11.addGeometry(Part.LineSegment(V(-26, 12, 0), V(-26, 14.5, 0)), False)
sketch11.addGeometry(Part.LineSegment(V(-26, 14.5, 0), V(-22.5, 16, 0)), False)
sketch11.addGeometry(Part.LineSegment(V(-22.5, 16, 0), V(-22.5, 12, 0)), False)
sketch11.addGeometry(Part.LineSegment(V(24.5, -17.4, 0), V(24.5, -12, 0)), False)
sketch11.addGeometry(Part.LineSegment(V(24.5, -12, 0), V(28, -12, 0)), False)
sketch11.addGeometry(Part.LineSegment(V(28, -12, 0), V(28, -15.4, 0)), False)
sketch11.addGeometry(Part.ArcOfCircle(Part.Circle(V(30.2, -23.2, 0), V(0, 0, 1), 8), math.radians(106), math.radians(135)), False)
sketch11.addGeometry(Part.LineSegment(V(24.5, 12, 0), V(24.5, 17.4, 0)), False)
sketch11.addGeometry(Part.ArcOfCircle(Part.Circle(V(30.2, 23.1, 0), V(0, 0, 1), 8), math.radians(-135), math.radians(-106)), False)
sketch11.addGeometry(Part.LineSegment(V(28, 15.4, 0), V(28, 12, 0)), False)
sketch11.addGeometry(Part.LineSegment(V(28, 12, 0), V(24.5, 12, 0)), False)
sketch11.addConstraint(Sketcher.Constraint("Coincident", 0, 2, 1, 1))
sketch11.addConstraint(Sketcher.Constraint("Coincident", 1, 2, 2, 1))
sketch11.addConstraint(Sketcher.Constraint("Coincident", 2, 2, 3, 1))
sketch11.addConstraint(Sketcher.Constraint("Coincident", 3, 2, 0, 1))
sketch11.addConstraint(Sketcher.Constraint("Coincident", 4, 2, 5, 1))
sketch11.addConstraint(Sketcher.Constraint("Coincident", 5, 2, 6, 1))
sketch11.addConstraint(Sketcher.Constraint("Coincident", 6, 2, 7, 1))
sketch11.addConstraint(Sketcher.Constraint("Coincident", 7, 2, 4, 1))
sketch11.addConstraint(Sketcher.Constraint("Coincident", 8, 2, 9, 1))
sketch11.addConstraint(Sketcher.Constraint("Coincident", 9, 2, 10, 1))
sketch11.addConstraint(Sketcher.Constraint("Coincident", 10, 2, 11, 1))
sketch11.addConstraint(Sketcher.Constraint("Coincident", 11, 2, 8, 1))
sketch11.addConstraint(Sketcher.Constraint("Coincident", 12, 2, 13, 1))
sketch11.addConstraint(Sketcher.Constraint("Coincident", 13, 2, 14, 1))
sketch11.addConstraint(Sketcher.Constraint("Coincident", 14, 2, 15, 1))
sketch11.addConstraint(Sketcher.Constraint("Coincident", 15, 2, 12, 1))
sketch11.addConstraint(Sketcher.Constraint("Vertical", 0))
sketch11.addConstraint(Sketcher.Constraint("Horizontal", 1))
sketch11.addConstraint(Sketcher.Constraint("Vertical", 2))
sketch11.addConstraint(Sketcher.Constraint("Horizontal", 4))
sketch11.addConstraint(Sketcher.Constraint("Vertical", 5))
sketch11.addConstraint(Sketcher.Constraint("Vertical", 7))
sketch11.addConstraint(Sketcher.Constraint("Vertical", 8))
sketch11.addConstraint(Sketcher.Constraint("Horizontal", 9))
sketch11.addConstraint(Sketcher.Constraint("Vertical", 10))
sketch11.addConstraint(Sketcher.Constraint("Vertical", 12))
sketch11.addConstraint(Sketcher.Constraint("Vertical", 14))
sketch11.addConstraint(Sketcher.Constraint("Horizontal", 15))
sketch11.addConstraint(Sketcher.Constraint("Equal", 11, 13))
sketch11.addConstraint(Sketcher.Constraint("Symmetric", 11, 3, 13, 3, -1))
sketch11.addConstraint(Sketcher.Constraint("Symmetric", 0, 2, 4, 2, -1))
sketch11.addConstraint(Sketcher.Constraint("Symmetric", 2, 2, 6, 2, -1))
sketch11.addConstraint(Sketcher.Constraint("Symmetric", 9, 2, 14, 2, -1))
sketch11.addConstraint(Sketcher.Constraint("Horizontal", 1, 2, 8, 2))
sketch11.addConstraint(Sketcher.Constraint("Vertical", 11, 2, 12, 2))
sketch11.addConstraint(Sketcher.Constraint("Equal", 4, 9))
sketch11.addConstraint(Sketcher.Constraint("Equal", 0, 5))
sketch11.addConstraint(Sketcher.Constraint("DistanceY", 2, 2, 2, 1, Q("4 mm")))
sketch11.addConstraint(Sketcher.Constraint("DistanceX", 1, 1, 1, 2, Q("3.5 mm")))
sketch11.addConstraint(Sketcher.Constraint("DistanceY", 0, 1, 0, 2, Q("2.5 mm")))
sketch11.addConstraint(Sketcher.Constraint("DistanceY", 0, 2, -1, 1, Q("12 mm")))
sketch11.addConstraint(Sketcher.Constraint("DistanceY", 8, 1, 8, 2, Q("5.45 mm")))
sketch11.addConstraint(Sketcher.Constraint("DistanceY", 11, 3, 13, 3, Q("46.3 mm")))
sketch11.addConstraint(Sketcher.Constraint("Radius", 11, Q("8.02574 mm")))
sketch11.addConstraint(Sketcher.Constraint("DistanceX", -1, 1, 11, 3, Q("30.189502 mm")))
sketch11.addConstraint(Sketcher.Constraint("DistanceX", 0, 2, -1, 1, Q("26.001992 mm")))
sketch11.setExpression("Constraints[37]", "Params.sketch11_height")
sketch11.setExpression("Constraints[38]", "Params.sketch11_width")
sketch11.setExpression("Constraints[39]", "Params.sketch11_height2")
sketch11.setExpression("Constraints[41]", "Params.sketch11_height3")
pad5 = body.newObject("PartDesign::Pad", "Pad004")
pad5.Profile = sketch11
pad5.setExpression("Length", "Params.pad5_length")
pad5.Reversed = True

# Sketch on XZ plane
sketch12 = body.newObject("Sketcher::SketchObject", "Sketch011")
sketch12.AttachmentSupport = (doc.getObject("XZ_Plane"), [""])
sketch12.MapMode = "FlatFace"
sketch12.AttachmentOffset = App.Placement(V(0, 0, 12), App.Rotation())
sketch12.addGeometry(Part.LineSegment(V(24.5, -4, 0), V(24.5, -3, 0)), False)
sketch12.addGeometry(Part.ArcOfCircle(Part.Circle(V(26.5, -2, 0), V(0, 0, 1), 2.2), math.radians(-153), math.radians(-117)), False)
sketch12.addGeometry(Part.LineSegment(V(25.5, -4, 0), V(24.5, -4, 0)), False)
sketch12.addGeometry(Part.LineSegment(V(-22.5, -3, 0), V(-22.5, -4, 0)), False)
sketch12.addGeometry(Part.LineSegment(V(-22.5, -4, 0), V(-23.5, -4, 0)), False)
sketch12.addGeometry(Part.ArcOfCircle(Part.Circle(V(-24.5, -2, 0), V(0, 0, 1), 2.2), math.radians(-63), math.radians(-27)), False)
sketch12.addGeometry(Part.LineSegment(V(28, 6.5, 0), V(28, 0, 0)), False)
sketch12.addGeometry(Part.ArcOfCircle(Part.Circle(V(20.3, 0, 0), V(0, 0, 1), 7.8), math.radians(0), math.radians(57)), False)
sketch12.addGeometry(Part.LineSegment(V(24.5, 6.5, 0), V(28, 6.5, 0)), False)
sketch12.addGeometry(Part.LineSegment(V(-26, 0, 0), V(-26, 6.5, 0)), False)
sketch12.addGeometry(Part.LineSegment(V(-26, 6.5, 0), V(-22.5, 6.5, 0)), False)
sketch12.addGeometry(Part.ArcOfCircle(Part.Circle(V(-18.2, 0, 0), V(0, 0, 1), 7.8), math.radians(123), math.radians(180)), False)
sketch12.addConstraint(Sketcher.Constraint("Coincident", 0, 2, 1, 1))
sketch12.addConstraint(Sketcher.Constraint("Coincident", 1, 2, 2, 1))
sketch12.addConstraint(Sketcher.Constraint("Coincident", 2, 2, 0, 1))
sketch12.addConstraint(Sketcher.Constraint("Coincident", 3, 2, 4, 1))
sketch12.addConstraint(Sketcher.Constraint("Coincident", 4, 2, 5, 1))
sketch12.addConstraint(Sketcher.Constraint("Coincident", 5, 2, 3, 1))
sketch12.addConstraint(Sketcher.Constraint("Tangent", 6, 2, 7, 1))
sketch12.addConstraint(Sketcher.Constraint("Coincident", 7, 2, 8, 1))
sketch12.addConstraint(Sketcher.Constraint("Coincident", 8, 2, 6, 1))
sketch12.addConstraint(Sketcher.Constraint("Coincident", 9, 2, 10, 1))
sketch12.addConstraint(Sketcher.Constraint("Coincident", 10, 2, 11, 1))
sketch12.addConstraint(Sketcher.Constraint("Tangent", 11, 2, 9, 1))
sketch12.addConstraint(Sketcher.Constraint("Vertical", 0))
sketch12.addConstraint(Sketcher.Constraint("Horizontal", 2))
sketch12.addConstraint(Sketcher.Constraint("Vertical", 3))
sketch12.addConstraint(Sketcher.Constraint("Horizontal", 4))
sketch12.addConstraint(Sketcher.Constraint("Vertical", 6))
sketch12.addConstraint(Sketcher.Constraint("Horizontal", 8))
sketch12.addConstraint(Sketcher.Constraint("Vertical", 9))
sketch12.addConstraint(Sketcher.Constraint("Horizontal", 10))
sketch12.addConstraint(Sketcher.Constraint("Equal", 1, 5))
sketch12.addConstraint(Sketcher.Constraint("Equal", 7, 11))
sketch12.addConstraint(Sketcher.Constraint("PointOnObject", 7, 3, -1))
sketch12.addConstraint(Sketcher.Constraint("PointOnObject", 11, 3, -1))
sketch12.addConstraint(Sketcher.Constraint("Horizontal", 1, 3, 5, 3))
sketch12.addConstraint(Sketcher.Constraint("Horizontal", 2, 2, 3, 2))
sketch12.addConstraint(Sketcher.Constraint("Horizontal", 0, 2, 5, 2))
sketch12.addConstraint(Sketcher.Constraint("Horizontal", 8, 2, 9, 2))
sketch12.addConstraint(Sketcher.Constraint("Vertical", 2, 2, 7, 2))
sketch12.addConstraint(Sketcher.Constraint("Vertical", 5, 2, 10, 2))
sketch12.addConstraint(Sketcher.Constraint("Equal", 4, 0))
sketch12.addConstraint(Sketcher.Constraint("DistanceX", 2, 2, 2, 1, Q("1 mm")))
sketch12.addConstraint(Sketcher.Constraint("DistanceX", 8, 1, 8, 2, Q("3.5 mm")))
sketch12.addConstraint(Sketcher.Constraint("DistanceY", 6, 2, 6, 1, Q("6.5 mm")))
sketch12.addConstraint(Sketcher.Constraint("DistanceY", 1, 3, -1, 1, Q("2 mm")))
sketch12.addConstraint(Sketcher.Constraint("DistanceY", 0, 2, -1, 1, Q("3 mm")))
sketch12.addConstraint(Sketcher.Constraint("DistanceX", -1, 1, 1, 3, Q("26.539502 mm")))
sketch12.addConstraint(Sketcher.Constraint("DistanceX", 5, 3, -1, 1, Q("24.501992 mm")))
sketch12.setExpression("Constraints[31]", "Params.sketch12_width")
sketch12.setExpression("Constraints[32]", "Params.sketch12_width2")
sketch12.setExpression("Constraints[33]", "Params.sketch12_height")
pocket7 = body.newObject("PartDesign::Pocket", "Pocket006")
pocket7.Profile = sketch12
pocket7.Type = "ThroughAll"
pocket7.Midplane = True

# Sketch on XZ plane
sketch13 = body.newObject("Sketcher::SketchObject", "Sketch012")
sketch13.AttachmentSupport = (doc.getObject("XZ_Plane"), [""])
sketch13.MapMode = "FlatFace"
sketch13.AttachmentOffset = App.Placement(V(0, 0, -12), App.Rotation())
sketch13.addGeometry(Part.Circle(V(-24.7, -2.7, 0), V(0, 0, 1), 0.6), False)
sketch13.addGeometry(Part.Circle(V(26.7, -2.7, 0), V(0, 0, 1), 0.6), False)
sketch13.addConstraint(Sketcher.Constraint("Equal", 0, 1))
sketch13.addConstraint(Sketcher.Constraint("Horizontal", 0, 3, 1, 3))
sketch13.addConstraint(Sketcher.Constraint("Diameter", 0, Q("1.2 mm")))
sketch13.addConstraint(Sketcher.Constraint("DistanceY", 0, 3, -1, 1, Q("2.7 mm")))
sketch13.addConstraint(Sketcher.Constraint("DistanceX", -1, 1, 1, 3, Q("26.739502 mm")))
sketch13.addConstraint(Sketcher.Constraint("DistanceX", 0, 3, -1, 1, Q("24.701992 mm")))
sketch13.setExpression("Constraints[2]", "Params.sketch13_diameter")
pocket8 = body.newObject("PartDesign::Pocket", "Pocket007")
pocket8.Profile = sketch13
pocket8.setExpression("Length", "Params.pocket8_length")

# Sketch on XZ plane
sketch14 = body.newObject("Sketcher::SketchObject", "Sketch013")
sketch14.AttachmentSupport = (doc.getObject("XZ_Plane"), [""])
sketch14.MapMode = "FlatFace"
sketch14.AttachmentOffset = App.Placement(V(0, 0, 12), App.Rotation())
sketch14.addGeometry(Part.Circle(V(26.7, -2.7, 0), V(0, 0, 1), 0.6), False)
sketch14.addGeometry(Part.Circle(V(-24.7, -2.7, 0), V(0, 0, 1), 0.6), False)
sketch14.addConstraint(Sketcher.Constraint("Equal", 0, 1))
sketch14.addConstraint(Sketcher.Constraint("Horizontal", 0, 3, 1, 3))
sketch14.addConstraint(Sketcher.Constraint("Diameter", 0, Q("1.2 mm")))
sketch14.addConstraint(Sketcher.Constraint("DistanceY", 0, 3, -1, 1, Q("2.7 mm")))
sketch14.addConstraint(Sketcher.Constraint("DistanceX", -1, 1, 0, 3, Q("26.739502 mm")))
sketch14.addConstraint(Sketcher.Constraint("DistanceX", 1, 3, -1, 1, Q("24.701992 mm")))
sketch14.setExpression("Constraints[2]", "Params.sketch14_diameter")
pocket9 = body.newObject("PartDesign::Pocket", "Pocket008")
pocket9.Profile = sketch14
pocket9.setExpression("Length", "Params.pocket9_length")
pocket9.Reversed = True

# Sketch on XY plane
sketch15 = body.newObject("Sketcher::SketchObject", "Sketch014")
sketch15.AttachmentSupport = (doc.getObject("XY_Plane"), [""])
sketch15.MapMode = "FlatFace"
sketch15.AttachmentOffset = App.Placement(V(0, 0, 6.5), App.Rotation())
sketch15.addGeometry(Part.ArcOfCircle(Part.Circle(V(0, 0, 0), V(0, 0, 1), 24), math.radians(-158), math.radians(158)), False)
sketch15.addGeometry(Part.LineSegment(V(-23, 9, 0), V(-23, -9, 0)), False)
sketch15.addGeometry(Part.Circle(V(0, 0, 0), V(0, 0, 1), 14), False)
sketch15.addConstraint(Sketcher.Constraint("Coincident", 0, 1, 1, 2))
sketch15.addConstraint(Sketcher.Constraint("Coincident", 1, 1, 0, 2))
sketch15.addConstraint(Sketcher.Constraint("Vertical", 1))
sketch15.addConstraint(Sketcher.Constraint("Coincident", 0, 3, -1, 1))
sketch15.addConstraint(Sketcher.Constraint("Coincident", 2, 3, -1, 1))
sketch15.addConstraint(Sketcher.Constraint("Diameter", 2, Q("27 mm")))
sketch15.addConstraint(Sketcher.Constraint("Radius", 0, Q("24.2 mm")))
sketch15.addConstraint(Sketcher.Constraint("DistanceY", 1, 2, 1, 1, Q("17.810152 mm")))
sketch15.setExpression("Constraints[5]", "Params.sketch15_diameter")
sketch15.setExpression("Constraints[6]", "Params.sketch15_radius")
pad6 = body.newObject("PartDesign::Pad", "Pad005")
pad6.Profile = sketch15
pad6.setExpression("Length", "Params.pad6_length")

# Sketch on XY plane
sketch16 = body.newObject("Sketcher::SketchObject", "Sketch015")
sketch16.AttachmentSupport = (doc.getObject("XY_Plane"), [""])
sketch16.MapMode = "FlatFace"
sketch16.AttachmentOffset = App.Placement(V(0, 0, 7.5), App.Rotation())
sketch16.addGeometry(Part.Circle(V(0, 0, 0), V(0, 0, 1), 20), False)
sketch16.addGeometry(Part.Circle(V(0, 0, 0), V(0, 0, 1), 20), False)
sketch16.addConstraint(Sketcher.Constraint("Coincident", 0, 3, -1, 1))
sketch16.addConstraint(Sketcher.Constraint("Coincident", 1, 3, -1, 1))
sketch16.addConstraint(Sketcher.Constraint("Diameter", 0, Q("40.9 mm")))
sketch16.addConstraint(Sketcher.Constraint("Diameter", 1, Q("39.7 mm")))
sketch16.setExpression("Constraints[2]", "Params.sketch16_diameter")
sketch16.setExpression("Constraints[3]", "Params.sketch16_diameter2")
pocket10 = body.newObject("PartDesign::Pocket", "Pocket009")
pocket10.Profile = sketch16
pocket10.setExpression("Length", "Params.pocket10_length")

# Sketch on XZ plane
sketch17 = body.newObject("Sketcher::SketchObject", "Sketch016")
sketch17.AttachmentSupport = (doc.getObject("XZ_Plane"), [""])
sketch17.MapMode = "FlatFace"
sketch17.AttachmentOffset = App.Placement(V(0, 0, 25), App.Rotation())
sketch17.addGeometry(Part.Circle(V(-6.5, 4.8, 0), V(0, 0, 1), 1), False)
sketch17.addConstraint(Sketcher.Constraint("Diameter", 0, Q("2 mm")))
sketch17.addConstraint(Sketcher.Constraint("DistanceX", 0, 3, -1, 1, Q("6.5 mm")))
sketch17.addConstraint(Sketcher.Constraint("DistanceY", -1, 1, 0, 3, Q("4.8 mm")))
sketch17.setExpression("Constraints[0]", "Params.sketch17_diameter")
pocket11 = body.newObject("PartDesign::Pocket", "Pocket010")
pocket11.Profile = sketch17
pocket11.setExpression("Length", "Params.pocket11_length")

# Sketch on YZ plane
sketch18 = body.newObject("Sketcher::SketchObject", "Sketch017")
sketch18.AttachmentSupport = (doc.getObject("YZ_Plane"), [""])
sketch18.MapMode = "FlatFace"
sketch18.AttachmentOffset = App.Placement(V(0, 0, 24.539502), App.Rotation())
sketch18.addGeometry(Part.LineSegment(V(-12, -1, 0), V(-12, -3, 0)), False)
sketch18.addGeometry(Part.LineSegment(V(-12, -3, 0), V(-17.4, -3, 0)), False)
sketch18.addGeometry(Part.LineSegment(V(-17.4, -3, 0), V(-17.4, -1, 0)), False)
sketch18.addGeometry(Part.LineSegment(V(-17.4, -1, 0), V(-12, -1, 0)), False)
sketch18.addGeometry(Part.LineSegment(V(17.4, -1, 0), V(17.4, -3, 0)), False)
sketch18.addGeometry(Part.LineSegment(V(17.4, -3, 0), V(12, -3, 0)), False)
sketch18.addGeometry(Part.LineSegment(V(12, -3, 0), V(12, -1, 0)), False)
sketch18.addGeometry(Part.LineSegment(V(12, -1, 0), V(17.4, -1, 0)), False)
sketch18.addConstraint(Sketcher.Constraint("Coincident", 0, 2, 1, 1))
sketch18.addConstraint(Sketcher.Constraint("Coincident", 1, 2, 2, 1))
sketch18.addConstraint(Sketcher.Constraint("Coincident", 2, 2, 3, 1))
sketch18.addConstraint(Sketcher.Constraint("Coincident", 3, 2, 0, 1))
sketch18.addConstraint(Sketcher.Constraint("Coincident", 4, 2, 5, 1))
sketch18.addConstraint(Sketcher.Constraint("Coincident", 5, 2, 6, 1))
sketch18.addConstraint(Sketcher.Constraint("Coincident", 6, 2, 7, 1))
sketch18.addConstraint(Sketcher.Constraint("Coincident", 7, 2, 4, 1))
sketch18.addConstraint(Sketcher.Constraint("Vertical", 0))
sketch18.addConstraint(Sketcher.Constraint("Horizontal", 1))
sketch18.addConstraint(Sketcher.Constraint("Vertical", 2))
sketch18.addConstraint(Sketcher.Constraint("Horizontal", 3))
sketch18.addConstraint(Sketcher.Constraint("Vertical", 4))
sketch18.addConstraint(Sketcher.Constraint("Horizontal", 5))
sketch18.addConstraint(Sketcher.Constraint("Vertical", 6))
sketch18.addConstraint(Sketcher.Constraint("Horizontal", 7))
sketch18.addConstraint(Sketcher.Constraint("Symmetric", 1, 2, 4, 2, -2))
sketch18.addConstraint(Sketcher.Constraint("Symmetric", 3, 2, 6, 2, -2))
sketch18.addConstraint(Sketcher.Constraint("DistanceY", 0, 2, 0, 1, Q("2 mm")))
sketch18.addConstraint(Sketcher.Constraint("DistanceX", 0, 2, -1, 1, Q("12 mm")))
sketch18.addConstraint(Sketcher.Constraint("DistanceY", 0, 2, -1, 1, Q("3 mm")))
sketch18.addConstraint(Sketcher.Constraint("DistanceX", 1, 2, 1, 1, Q("5.45 mm")))
sketch18.setExpression("Constraints[18]", "Params.sketch18_height")
sketch18.setExpression("Constraints[21]", "Params.sketch18_width")
pad7 = body.newObject("PartDesign::Pad", "Pad006")
pad7.Profile = sketch18
pad7.setExpression("Length", "Params.pad7_length")
pad7.Reversed = True

doc.recompute()
